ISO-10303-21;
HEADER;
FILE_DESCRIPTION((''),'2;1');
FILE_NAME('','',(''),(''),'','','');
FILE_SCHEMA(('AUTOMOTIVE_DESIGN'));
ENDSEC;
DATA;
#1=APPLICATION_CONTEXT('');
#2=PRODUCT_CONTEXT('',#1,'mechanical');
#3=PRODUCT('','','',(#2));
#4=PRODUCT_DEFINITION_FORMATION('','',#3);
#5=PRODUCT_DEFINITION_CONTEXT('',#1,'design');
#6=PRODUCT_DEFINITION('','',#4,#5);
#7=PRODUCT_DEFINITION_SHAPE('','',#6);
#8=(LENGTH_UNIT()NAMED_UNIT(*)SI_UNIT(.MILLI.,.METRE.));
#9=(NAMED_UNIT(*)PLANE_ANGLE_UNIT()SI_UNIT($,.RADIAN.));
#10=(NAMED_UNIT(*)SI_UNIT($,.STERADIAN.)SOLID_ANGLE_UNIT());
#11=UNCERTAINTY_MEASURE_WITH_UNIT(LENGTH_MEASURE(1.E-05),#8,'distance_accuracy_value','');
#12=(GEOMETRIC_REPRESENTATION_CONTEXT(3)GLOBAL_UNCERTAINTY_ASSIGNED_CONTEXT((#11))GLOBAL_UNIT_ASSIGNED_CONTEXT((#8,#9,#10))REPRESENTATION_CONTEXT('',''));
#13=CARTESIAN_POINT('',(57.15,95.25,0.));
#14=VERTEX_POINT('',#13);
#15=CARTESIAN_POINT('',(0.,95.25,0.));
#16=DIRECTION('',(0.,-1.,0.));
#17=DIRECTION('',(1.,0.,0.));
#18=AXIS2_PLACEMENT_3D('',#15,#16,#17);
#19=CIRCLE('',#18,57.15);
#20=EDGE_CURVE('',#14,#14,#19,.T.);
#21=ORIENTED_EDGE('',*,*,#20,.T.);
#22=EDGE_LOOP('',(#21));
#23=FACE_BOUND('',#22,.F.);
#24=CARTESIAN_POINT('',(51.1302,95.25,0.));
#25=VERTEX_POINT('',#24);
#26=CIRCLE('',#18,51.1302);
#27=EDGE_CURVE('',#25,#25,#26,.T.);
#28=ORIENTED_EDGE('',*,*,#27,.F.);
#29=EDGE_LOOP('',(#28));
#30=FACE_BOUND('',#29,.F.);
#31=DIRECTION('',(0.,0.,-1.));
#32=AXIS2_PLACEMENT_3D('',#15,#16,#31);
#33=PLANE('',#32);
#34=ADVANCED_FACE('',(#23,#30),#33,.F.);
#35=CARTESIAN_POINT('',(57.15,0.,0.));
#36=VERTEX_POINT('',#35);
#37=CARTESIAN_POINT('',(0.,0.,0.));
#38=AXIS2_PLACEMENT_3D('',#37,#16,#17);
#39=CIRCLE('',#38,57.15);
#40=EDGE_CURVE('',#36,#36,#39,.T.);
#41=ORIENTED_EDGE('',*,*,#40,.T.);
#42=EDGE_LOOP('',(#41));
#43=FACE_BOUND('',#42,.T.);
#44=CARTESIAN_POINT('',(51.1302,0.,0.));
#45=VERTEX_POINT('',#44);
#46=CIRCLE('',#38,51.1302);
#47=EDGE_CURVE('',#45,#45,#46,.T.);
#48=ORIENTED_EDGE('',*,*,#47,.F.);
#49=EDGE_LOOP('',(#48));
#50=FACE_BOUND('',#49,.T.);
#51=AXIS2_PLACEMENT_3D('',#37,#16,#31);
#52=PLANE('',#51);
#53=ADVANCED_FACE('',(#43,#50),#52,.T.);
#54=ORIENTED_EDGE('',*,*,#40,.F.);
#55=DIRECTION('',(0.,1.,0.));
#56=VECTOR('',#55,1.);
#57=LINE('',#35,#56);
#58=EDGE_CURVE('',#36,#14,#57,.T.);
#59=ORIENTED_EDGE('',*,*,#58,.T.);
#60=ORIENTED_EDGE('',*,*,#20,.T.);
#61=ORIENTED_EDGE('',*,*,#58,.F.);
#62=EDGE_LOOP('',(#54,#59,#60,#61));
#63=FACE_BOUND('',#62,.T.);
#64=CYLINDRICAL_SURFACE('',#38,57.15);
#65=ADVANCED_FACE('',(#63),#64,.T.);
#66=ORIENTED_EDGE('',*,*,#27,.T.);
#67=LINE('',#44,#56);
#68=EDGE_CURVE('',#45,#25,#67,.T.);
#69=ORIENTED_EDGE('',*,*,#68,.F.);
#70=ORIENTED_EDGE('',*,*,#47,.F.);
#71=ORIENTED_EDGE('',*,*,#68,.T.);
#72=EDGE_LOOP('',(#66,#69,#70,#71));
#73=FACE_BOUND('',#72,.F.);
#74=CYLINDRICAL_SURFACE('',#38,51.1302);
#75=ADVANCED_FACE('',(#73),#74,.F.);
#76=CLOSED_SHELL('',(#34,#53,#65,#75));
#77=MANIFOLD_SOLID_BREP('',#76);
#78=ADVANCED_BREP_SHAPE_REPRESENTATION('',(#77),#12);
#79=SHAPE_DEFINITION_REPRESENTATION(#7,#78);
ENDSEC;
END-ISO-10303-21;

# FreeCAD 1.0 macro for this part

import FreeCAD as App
import Part
import Sketcher
Q = App.Units.Quantity

doc = App.newDocument("Part")
body = doc.addObject("PartDesign::Body", "Body")

# Sketch on XZ plane
sketch1 = body.newObject("Sketcher::SketchObject", "Sketch")
sketch1.AttachmentSupport = (doc.getObject("XZ_Plane"), [""])
sketch1.MapMode = "FlatFace"
sketch1.addGeometry(Part.Circle(App.Vector(0, 0, 0), App.Vector(0, 0, 1), 57), False)
sketch1.addGeometry(Part.Circle(App.Vector(0, 0, 0), App.Vector(0, 0, 1), 51), False)
sketch1.addConstraint(Sketcher.Constraint("Coincident", 0, 3, -1, 1))
sketch1.addConstraint(Sketcher.Constraint("Coincident", 1, 3, -1, 1))
sketch1.addConstraint(Sketcher.Constraint("Diameter", 0, Q("4.5 in")))
sketch1.addConstraint(Sketcher.Constraint("Diameter", 1, Q("4.026 in")))
pad1 = body.newObject("PartDesign::Pad", "Pad")
pad1.Profile = sketch1
pad1.Length = Q("3.75 in")
pad1.Reversed = True

doc.recompute()
